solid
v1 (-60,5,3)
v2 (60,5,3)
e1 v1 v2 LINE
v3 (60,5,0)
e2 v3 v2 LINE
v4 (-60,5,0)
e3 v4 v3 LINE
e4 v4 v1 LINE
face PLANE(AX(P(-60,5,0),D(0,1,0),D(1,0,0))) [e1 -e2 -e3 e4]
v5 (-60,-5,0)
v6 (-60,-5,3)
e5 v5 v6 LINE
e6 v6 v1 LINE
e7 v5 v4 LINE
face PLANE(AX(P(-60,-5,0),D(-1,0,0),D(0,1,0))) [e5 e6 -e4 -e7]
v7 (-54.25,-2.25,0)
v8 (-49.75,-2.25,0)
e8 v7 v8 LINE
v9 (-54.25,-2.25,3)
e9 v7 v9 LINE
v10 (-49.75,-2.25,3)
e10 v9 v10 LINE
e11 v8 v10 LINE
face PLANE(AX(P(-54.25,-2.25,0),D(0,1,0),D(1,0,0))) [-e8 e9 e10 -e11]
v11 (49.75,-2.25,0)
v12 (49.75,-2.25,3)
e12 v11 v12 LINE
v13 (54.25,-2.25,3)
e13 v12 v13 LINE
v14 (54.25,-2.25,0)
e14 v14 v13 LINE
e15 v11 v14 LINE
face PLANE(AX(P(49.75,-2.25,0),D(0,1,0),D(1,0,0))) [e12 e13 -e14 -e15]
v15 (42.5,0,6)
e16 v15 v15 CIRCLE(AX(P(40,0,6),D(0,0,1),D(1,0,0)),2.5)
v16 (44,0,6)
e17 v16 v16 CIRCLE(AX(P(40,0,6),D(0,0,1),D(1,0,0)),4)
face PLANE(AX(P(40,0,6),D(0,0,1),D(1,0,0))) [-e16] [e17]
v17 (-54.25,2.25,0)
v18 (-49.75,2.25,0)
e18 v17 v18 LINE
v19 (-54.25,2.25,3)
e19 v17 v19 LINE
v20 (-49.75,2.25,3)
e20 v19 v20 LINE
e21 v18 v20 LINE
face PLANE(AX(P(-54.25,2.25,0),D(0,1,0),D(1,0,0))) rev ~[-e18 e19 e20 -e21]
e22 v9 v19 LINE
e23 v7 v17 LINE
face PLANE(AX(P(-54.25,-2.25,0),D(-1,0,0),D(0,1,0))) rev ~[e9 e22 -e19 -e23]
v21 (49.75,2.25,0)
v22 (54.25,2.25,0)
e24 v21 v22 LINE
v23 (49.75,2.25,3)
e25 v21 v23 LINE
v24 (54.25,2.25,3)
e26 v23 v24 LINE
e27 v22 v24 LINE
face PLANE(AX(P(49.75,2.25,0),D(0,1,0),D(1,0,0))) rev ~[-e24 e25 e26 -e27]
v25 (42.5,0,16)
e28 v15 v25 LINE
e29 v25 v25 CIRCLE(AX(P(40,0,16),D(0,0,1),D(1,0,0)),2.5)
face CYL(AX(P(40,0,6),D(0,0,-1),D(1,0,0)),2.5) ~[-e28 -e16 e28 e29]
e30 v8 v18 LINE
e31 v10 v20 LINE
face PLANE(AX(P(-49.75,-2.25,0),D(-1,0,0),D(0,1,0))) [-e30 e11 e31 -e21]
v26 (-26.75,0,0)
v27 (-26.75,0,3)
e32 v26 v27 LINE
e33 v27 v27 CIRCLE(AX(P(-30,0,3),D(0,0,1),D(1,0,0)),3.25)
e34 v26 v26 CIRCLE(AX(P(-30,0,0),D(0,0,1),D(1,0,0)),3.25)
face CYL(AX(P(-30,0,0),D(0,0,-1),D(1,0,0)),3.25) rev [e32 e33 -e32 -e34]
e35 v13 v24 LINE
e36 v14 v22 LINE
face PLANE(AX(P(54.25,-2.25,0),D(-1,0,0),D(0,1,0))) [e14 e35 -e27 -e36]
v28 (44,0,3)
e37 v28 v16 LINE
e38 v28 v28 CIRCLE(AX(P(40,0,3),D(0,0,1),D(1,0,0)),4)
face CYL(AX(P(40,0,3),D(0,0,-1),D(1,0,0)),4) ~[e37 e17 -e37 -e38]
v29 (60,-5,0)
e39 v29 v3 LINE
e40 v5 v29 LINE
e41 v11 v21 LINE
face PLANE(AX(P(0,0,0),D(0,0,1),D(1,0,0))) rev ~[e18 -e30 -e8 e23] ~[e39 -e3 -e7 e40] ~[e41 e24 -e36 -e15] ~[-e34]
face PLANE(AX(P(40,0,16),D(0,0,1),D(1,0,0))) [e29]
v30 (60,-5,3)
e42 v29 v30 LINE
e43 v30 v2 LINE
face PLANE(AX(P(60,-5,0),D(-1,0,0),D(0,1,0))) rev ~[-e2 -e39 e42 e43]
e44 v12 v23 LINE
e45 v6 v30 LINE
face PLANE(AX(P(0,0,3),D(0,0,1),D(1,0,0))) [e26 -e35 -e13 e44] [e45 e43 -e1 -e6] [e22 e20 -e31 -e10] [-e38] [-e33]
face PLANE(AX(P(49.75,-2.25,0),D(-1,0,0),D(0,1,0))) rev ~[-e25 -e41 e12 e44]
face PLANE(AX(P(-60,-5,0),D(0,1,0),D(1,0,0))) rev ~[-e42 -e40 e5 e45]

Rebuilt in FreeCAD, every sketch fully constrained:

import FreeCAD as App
import Part
import Sketcher

V = App.Vector


def add_polygon(sketch, points):
    """Adds a closed chain of lines whose ends are joined by coincident constraints."""
    first, n = sketch.GeometryCount, len(points)
    for a, b in zip(points, points[1:] + points[:1]):
        sketch.addGeometry(Part.LineSegment(App.Vector(*a, 0), App.Vector(*b, 0)), False)
    for i in range(n):
        sketch.addConstraint(Sketcher.Constraint("Coincident", first + i, 2, first + (i + 1) % n, 1))

doc = App.newDocument("Part")
body = doc.addObject("PartDesign::Body", "Body")

# Sketch on XY plane
sketch1 = body.newObject("Sketcher::SketchObject", "Sketch")
sketch1.AttachmentSupport = (doc.getObject("XY_Plane"), [""])
sketch1.MapMode = "FlatFace"
add_polygon(sketch1, [(-60, 5), (-60, -5), (60, -5), (60, 5)])  # lines 0-3
add_polygon(sketch1, [(-49.8, -2.2), (-54.2, -2.2), (-54.2, 2.2), (-49.8, 2.2)])  # lines 4-7
sketch1.addGeometry(Part.Circle(V(-30, 0, 0), V(0, 0, 1), 3.2), False)  # 8
add_polygon(sketch1, [(54.2, -2.2), (49.8, -2.2), (49.8, 2.2), (54.2, 2.2)])  # lines 9-12
sketch1.addConstraint([
    Sketcher.Constraint("Vertical", 0),
    Sketcher.Constraint("Horizontal", 1),
    Sketcher.Constraint("Vertical", 2),
    Sketcher.Constraint("Horizontal", 3),
    Sketcher.Constraint("Horizontal", 4),
    Sketcher.Constraint("Vertical", 5),
    Sketcher.Constraint("Horizontal", 6),
    Sketcher.Constraint("Vertical", 7),
    Sketcher.Constraint("Horizontal", 9),
    Sketcher.Constraint("Vertical", 10),
    Sketcher.Constraint("Horizontal", 11),
    Sketcher.Constraint("Vertical", 12),
    Sketcher.Constraint("Symmetric", 0, 2, 2, 2, -1, 1),
    Sketcher.Constraint("Symmetric", 6, 2, 9, 2, -1, 1),
    Sketcher.Constraint("Symmetric", 4, 2, 11, 2, -1, 1),
    Sketcher.Constraint("PointOnObject", 8, 3, -1),
    Sketcher.Constraint("Horizontal", 7, 2, 9, 2),
    Sketcher.Constraint("Equal", 11, 5),
    Sketcher.Constraint("Diameter", 8, 6.5),
    Sketcher.Constraint("DistanceX", 1, 1, 1, 2, 120.0),
    Sketcher.Constraint("DistanceY", 0, 2, 0, 1, 10.0),
    Sketcher.Constraint("DistanceX", 4, 2, 4, 1, 4.5),
    Sketcher.Constraint("DistanceX", 8, 3, -1, 1, 30.0),
    Sketcher.Constraint("DistanceX", 7, 2, 9, 2, 99.5),
])
pad1 = body.newObject("PartDesign::Pad", "Pad")
pad1.Profile = sketch1
pad1.Length = 3

# Sketch on XY plane
sketch2 = body.newObject("Sketcher::SketchObject", "Sketch001")
sketch2.AttachmentSupport = (doc.getObject("XY_Plane"), [""])
sketch2.MapMode = "FlatFace"
sketch2.AttachmentOffset = App.Placement(V(0, 0, 3), App.Rotation())
sketch2.addGeometry(Part.Circle(V(40, 0, 0), V(0, 0, 1), 4), False)
sketch2.addConstraint([
    Sketcher.Constraint("PointOnObject", 0, 3, -1),
    Sketcher.Constraint("Diameter", 0, 8.0),
    Sketcher.Constraint("DistanceX", -1, 1, 0, 3, 40.0),
])
pad2 = body.newObject("PartDesign::Pad", "Pad001")
pad2.Profile = sketch2
pad2.Length = 3

# Sketch on XY plane
sketch3 = body.newObject("Sketcher::SketchObject", "Sketch002")
sketch3.AttachmentSupport = (doc.getObject("XY_Plane"), [""])
sketch3.MapMode = "FlatFace"
sketch3.AttachmentOffset = App.Placement(V(0, 0, 6), App.Rotation())
sketch3.addGeometry(Part.Circle(V(40, 0, 0), V(0, 0, 1), 2.5), False)
sketch3.addConstraint([
    Sketcher.Constraint("PointOnObject", 0, 3, -1),
    Sketcher.Constraint("Diameter", 0, 5.0),
    Sketcher.Constraint("DistanceX", -1, 1, 0, 3, 40.0),
])
pad3 = body.newObject("PartDesign::Pad", "Pad002")
pad3.Profile = sketch3
pad3.Length = 10

doc.recompute()
